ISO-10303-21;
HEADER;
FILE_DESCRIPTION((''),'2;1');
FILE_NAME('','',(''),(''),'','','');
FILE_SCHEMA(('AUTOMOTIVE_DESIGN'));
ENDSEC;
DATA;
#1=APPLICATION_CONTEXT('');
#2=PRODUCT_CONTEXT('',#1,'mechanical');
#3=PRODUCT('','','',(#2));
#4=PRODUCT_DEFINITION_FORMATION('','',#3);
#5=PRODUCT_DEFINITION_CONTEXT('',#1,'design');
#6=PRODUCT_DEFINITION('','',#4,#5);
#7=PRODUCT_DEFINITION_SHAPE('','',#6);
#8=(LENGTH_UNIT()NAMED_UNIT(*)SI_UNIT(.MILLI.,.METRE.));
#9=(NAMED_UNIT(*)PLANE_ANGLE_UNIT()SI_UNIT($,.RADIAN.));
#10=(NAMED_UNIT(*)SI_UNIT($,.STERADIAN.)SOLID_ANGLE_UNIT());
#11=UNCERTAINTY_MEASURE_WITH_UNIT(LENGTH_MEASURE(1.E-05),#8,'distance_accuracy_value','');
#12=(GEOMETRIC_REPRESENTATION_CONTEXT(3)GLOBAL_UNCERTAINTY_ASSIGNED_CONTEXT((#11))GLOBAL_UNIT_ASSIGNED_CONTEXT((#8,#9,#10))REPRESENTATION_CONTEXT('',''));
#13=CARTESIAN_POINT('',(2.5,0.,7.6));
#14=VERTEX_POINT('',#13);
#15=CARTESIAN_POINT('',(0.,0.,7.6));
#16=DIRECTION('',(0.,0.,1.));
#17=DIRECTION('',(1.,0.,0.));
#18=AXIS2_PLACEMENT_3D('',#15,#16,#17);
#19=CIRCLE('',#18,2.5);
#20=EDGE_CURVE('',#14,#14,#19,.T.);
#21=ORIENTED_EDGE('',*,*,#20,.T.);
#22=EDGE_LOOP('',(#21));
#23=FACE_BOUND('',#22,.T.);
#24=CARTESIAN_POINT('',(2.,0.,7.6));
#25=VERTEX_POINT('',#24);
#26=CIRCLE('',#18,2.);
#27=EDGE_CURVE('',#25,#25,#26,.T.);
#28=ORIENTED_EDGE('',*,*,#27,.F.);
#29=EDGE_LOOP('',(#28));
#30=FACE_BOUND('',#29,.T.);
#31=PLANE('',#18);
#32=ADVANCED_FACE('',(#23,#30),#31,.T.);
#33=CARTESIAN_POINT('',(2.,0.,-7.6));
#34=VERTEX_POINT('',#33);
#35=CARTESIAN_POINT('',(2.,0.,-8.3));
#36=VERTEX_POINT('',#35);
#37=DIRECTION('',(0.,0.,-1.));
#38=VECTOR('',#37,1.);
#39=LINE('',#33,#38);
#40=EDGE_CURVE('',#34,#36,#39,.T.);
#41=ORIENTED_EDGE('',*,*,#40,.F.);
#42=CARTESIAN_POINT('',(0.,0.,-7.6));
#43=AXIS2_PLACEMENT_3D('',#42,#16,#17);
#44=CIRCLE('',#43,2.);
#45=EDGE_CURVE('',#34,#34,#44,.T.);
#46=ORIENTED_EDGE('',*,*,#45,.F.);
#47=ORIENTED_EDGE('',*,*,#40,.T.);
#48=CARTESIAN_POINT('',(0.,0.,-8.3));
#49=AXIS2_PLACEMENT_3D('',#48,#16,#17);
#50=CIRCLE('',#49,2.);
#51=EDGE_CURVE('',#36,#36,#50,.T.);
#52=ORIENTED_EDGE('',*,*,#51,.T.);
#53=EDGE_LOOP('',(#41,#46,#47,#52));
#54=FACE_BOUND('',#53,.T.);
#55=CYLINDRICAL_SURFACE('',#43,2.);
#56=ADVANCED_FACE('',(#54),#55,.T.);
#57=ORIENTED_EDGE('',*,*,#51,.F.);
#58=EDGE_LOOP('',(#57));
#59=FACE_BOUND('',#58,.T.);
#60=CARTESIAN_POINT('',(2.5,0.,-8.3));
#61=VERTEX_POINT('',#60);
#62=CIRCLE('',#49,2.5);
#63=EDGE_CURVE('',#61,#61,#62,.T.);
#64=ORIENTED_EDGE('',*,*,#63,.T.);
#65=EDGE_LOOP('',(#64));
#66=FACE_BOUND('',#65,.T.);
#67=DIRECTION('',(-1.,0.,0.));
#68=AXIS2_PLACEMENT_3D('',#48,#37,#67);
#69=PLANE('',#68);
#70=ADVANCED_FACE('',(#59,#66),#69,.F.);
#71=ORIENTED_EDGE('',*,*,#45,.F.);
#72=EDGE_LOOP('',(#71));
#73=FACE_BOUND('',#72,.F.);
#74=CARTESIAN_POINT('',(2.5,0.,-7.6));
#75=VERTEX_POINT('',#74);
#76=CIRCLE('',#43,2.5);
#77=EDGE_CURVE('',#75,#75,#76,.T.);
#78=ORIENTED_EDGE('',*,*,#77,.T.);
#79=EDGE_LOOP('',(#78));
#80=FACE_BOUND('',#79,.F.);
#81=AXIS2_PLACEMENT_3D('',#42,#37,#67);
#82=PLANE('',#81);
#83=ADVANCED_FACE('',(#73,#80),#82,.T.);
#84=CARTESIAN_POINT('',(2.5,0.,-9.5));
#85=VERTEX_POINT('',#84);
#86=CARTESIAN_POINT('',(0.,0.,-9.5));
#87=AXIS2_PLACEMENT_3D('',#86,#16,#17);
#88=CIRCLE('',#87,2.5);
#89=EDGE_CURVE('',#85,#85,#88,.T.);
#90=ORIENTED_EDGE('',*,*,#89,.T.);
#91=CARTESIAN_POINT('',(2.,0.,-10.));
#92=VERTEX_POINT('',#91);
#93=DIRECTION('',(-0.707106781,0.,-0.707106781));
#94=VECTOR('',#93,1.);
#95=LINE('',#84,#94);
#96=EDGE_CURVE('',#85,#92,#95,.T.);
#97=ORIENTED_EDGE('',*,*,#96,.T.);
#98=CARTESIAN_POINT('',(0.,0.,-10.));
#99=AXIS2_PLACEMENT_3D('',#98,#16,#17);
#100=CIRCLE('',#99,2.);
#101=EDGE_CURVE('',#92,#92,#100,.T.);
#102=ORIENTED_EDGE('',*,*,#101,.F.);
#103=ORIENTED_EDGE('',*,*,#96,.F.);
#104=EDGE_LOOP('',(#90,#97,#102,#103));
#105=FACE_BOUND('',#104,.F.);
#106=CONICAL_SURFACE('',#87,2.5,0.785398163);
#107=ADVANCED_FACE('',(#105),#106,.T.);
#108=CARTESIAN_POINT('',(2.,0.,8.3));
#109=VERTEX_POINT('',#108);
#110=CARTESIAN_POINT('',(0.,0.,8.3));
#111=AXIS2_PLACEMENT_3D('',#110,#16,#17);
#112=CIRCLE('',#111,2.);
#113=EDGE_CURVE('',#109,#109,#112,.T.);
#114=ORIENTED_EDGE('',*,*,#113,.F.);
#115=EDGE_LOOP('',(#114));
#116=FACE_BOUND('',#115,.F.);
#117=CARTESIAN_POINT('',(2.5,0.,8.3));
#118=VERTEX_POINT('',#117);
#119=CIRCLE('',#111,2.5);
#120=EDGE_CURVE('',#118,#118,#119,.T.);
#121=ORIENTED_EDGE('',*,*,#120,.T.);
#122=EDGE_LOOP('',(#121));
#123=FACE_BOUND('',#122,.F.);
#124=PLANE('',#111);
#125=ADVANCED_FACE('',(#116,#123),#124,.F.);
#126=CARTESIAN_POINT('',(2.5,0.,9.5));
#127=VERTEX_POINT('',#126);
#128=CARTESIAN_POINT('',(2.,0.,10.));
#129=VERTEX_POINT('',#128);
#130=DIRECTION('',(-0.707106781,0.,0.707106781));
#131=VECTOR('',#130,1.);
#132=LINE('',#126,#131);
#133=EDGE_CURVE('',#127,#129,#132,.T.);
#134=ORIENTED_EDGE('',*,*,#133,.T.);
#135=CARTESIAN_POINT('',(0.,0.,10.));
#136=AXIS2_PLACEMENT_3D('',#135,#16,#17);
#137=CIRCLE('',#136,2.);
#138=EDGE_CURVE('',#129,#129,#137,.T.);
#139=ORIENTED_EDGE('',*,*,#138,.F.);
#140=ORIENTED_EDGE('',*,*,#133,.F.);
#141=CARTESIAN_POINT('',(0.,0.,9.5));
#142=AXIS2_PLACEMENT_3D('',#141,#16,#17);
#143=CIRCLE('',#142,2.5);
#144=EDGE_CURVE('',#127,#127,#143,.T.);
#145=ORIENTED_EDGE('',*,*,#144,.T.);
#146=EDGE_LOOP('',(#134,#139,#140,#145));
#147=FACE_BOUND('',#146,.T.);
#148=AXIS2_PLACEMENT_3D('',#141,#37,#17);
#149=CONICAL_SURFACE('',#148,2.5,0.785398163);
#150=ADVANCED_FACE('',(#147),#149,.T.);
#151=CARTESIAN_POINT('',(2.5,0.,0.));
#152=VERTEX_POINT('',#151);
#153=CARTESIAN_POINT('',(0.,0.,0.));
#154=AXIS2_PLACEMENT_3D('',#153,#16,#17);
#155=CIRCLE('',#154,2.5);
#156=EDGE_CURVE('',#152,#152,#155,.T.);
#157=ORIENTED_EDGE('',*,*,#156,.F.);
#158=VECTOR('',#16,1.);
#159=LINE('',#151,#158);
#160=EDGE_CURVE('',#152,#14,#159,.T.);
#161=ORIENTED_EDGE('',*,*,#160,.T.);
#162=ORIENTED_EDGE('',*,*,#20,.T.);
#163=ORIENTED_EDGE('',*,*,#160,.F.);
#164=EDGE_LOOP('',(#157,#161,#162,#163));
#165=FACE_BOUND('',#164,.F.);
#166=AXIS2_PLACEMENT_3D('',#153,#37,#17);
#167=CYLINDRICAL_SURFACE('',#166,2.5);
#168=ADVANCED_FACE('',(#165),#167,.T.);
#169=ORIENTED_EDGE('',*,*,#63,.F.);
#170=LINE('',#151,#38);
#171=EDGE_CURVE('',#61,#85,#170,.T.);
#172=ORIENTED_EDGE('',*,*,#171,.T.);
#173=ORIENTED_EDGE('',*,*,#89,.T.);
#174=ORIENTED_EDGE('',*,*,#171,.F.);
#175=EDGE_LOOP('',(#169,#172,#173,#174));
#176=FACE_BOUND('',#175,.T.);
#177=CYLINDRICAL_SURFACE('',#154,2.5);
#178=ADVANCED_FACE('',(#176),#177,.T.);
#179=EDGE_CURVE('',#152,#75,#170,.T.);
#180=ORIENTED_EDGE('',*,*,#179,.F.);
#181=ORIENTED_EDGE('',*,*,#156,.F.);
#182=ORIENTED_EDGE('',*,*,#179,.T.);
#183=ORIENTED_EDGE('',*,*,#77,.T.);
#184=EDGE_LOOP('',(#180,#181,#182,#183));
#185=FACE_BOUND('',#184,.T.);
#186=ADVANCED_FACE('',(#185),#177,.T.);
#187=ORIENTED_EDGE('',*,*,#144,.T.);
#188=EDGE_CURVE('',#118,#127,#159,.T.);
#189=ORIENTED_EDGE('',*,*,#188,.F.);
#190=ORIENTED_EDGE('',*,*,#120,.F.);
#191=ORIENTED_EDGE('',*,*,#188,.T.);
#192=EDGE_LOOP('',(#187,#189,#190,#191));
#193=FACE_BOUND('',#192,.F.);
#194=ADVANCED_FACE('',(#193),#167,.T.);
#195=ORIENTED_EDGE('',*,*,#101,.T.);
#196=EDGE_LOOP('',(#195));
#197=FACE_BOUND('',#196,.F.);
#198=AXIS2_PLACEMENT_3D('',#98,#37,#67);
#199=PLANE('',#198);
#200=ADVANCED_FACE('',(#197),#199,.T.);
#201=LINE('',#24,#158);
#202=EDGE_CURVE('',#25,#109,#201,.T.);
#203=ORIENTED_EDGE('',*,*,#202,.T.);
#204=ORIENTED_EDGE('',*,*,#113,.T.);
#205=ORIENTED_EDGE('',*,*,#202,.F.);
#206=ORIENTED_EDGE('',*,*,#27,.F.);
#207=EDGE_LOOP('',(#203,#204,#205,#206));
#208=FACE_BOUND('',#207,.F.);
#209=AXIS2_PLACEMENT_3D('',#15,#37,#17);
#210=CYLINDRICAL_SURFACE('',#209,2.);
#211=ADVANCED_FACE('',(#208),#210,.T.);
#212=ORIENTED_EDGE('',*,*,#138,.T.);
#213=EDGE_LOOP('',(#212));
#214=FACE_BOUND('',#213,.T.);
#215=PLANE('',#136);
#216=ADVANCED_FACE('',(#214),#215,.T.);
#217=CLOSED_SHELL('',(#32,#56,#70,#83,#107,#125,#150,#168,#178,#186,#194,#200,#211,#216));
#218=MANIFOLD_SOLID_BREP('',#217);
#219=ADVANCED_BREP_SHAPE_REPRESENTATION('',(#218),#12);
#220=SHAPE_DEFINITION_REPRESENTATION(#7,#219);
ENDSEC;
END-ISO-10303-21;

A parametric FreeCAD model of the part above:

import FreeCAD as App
import Part
import Sketcher

V = App.Vector


def edges_at(feature, points):
    """Names of the edges that pass closest to the given points."""
    edges = feature.Shape.Edges
    near = lambda p: min(range(len(edges)), key=lambda i: edges[i].distToShape(Part.Vertex(*p))[0])
    return sorted({f"Edge{near(p) + 1}" for p in points})

doc = App.newDocument("Part")
body = doc.addObject("PartDesign::Body", "Body")

sketch1 = body.newObject("Sketcher::SketchObject", "Sketch")
sketch1.AttachmentSupport = (doc.getObject("XY_Plane"), [""])
sketch1.MapMode = "FlatFace"
sketch1.addGeometry(Part.Circle(V(0, 0, 0), V(0, 0, 1), 2.5), False)
sketch1.addConstraint(Sketcher.Constraint("Coincident", 0, 3, -1, 1))
sketch1.addConstraint(Sketcher.Constraint("Diameter", 0, 5.0))
pad1 = body.newObject("PartDesign::Pad", "Pad")
pad1.Profile = sketch1
pad1.Length = 10

sketch2 = body.newObject("Sketcher::SketchObject", "Sketch001")
sketch2.AttachmentSupport = (doc.getObject("XY_Plane"), [""])
sketch2.MapMode = "FlatFace"
sketch2.AttachmentOffset = App.Placement(V(0, 0, 7.6), App.Rotation())
sketch2.addGeometry(Part.Circle(V(0, 0, 0), V(0, 0, 1), 2.5), False)
sketch2.addGeometry(Part.Circle(V(0, 0, 0), V(0, 0, 1), 2), False)
sketch2.addConstraint(Sketcher.Constraint("Coincident", 0, 3, -1, 1))
sketch2.addConstraint(Sketcher.Constraint("Coincident", 1, 3, -1, 1))
sketch2.addConstraint(Sketcher.Constraint("Diameter", 0, 5.0))
sketch2.addConstraint(Sketcher.Constraint("Diameter", 1, 4.0))
pocket1 = body.newObject("PartDesign::Pocket", "Pocket")
pocket1.Profile = sketch2
pocket1.Length = 0.7
pocket1.Reversed = True
body2 = doc.addObject("PartDesign::Body", "Body001")
doc.recompute()

body2.BaseFeature = body
doc.recompute()

mirroring = doc.addObject("Part::Mirroring", "Mirroring")
mirroring.Source = body
mirroring.Base = V(0, 0, 0)
mirroring.Normal = V(0, 0, 1)
body3 = doc.addObject("PartDesign::Body", "Body002")
body3.BaseFeature = mirroring
boolean = body2.newObject("PartDesign::Boolean", "Boolean")
boolean.Type = "Fuse"
boolean.addObjects([body3])
doc.recompute()

chamfer = body2.newObject("PartDesign::Chamfer", "Chamfer")
chamfer.Base = (boolean, edges_at(boolean, [(-2.5, 0, 10), (-2.5, 0, -10)]))
chamfer.Size = 0.5
mirroring.Visibility = False

doc.recompute()
